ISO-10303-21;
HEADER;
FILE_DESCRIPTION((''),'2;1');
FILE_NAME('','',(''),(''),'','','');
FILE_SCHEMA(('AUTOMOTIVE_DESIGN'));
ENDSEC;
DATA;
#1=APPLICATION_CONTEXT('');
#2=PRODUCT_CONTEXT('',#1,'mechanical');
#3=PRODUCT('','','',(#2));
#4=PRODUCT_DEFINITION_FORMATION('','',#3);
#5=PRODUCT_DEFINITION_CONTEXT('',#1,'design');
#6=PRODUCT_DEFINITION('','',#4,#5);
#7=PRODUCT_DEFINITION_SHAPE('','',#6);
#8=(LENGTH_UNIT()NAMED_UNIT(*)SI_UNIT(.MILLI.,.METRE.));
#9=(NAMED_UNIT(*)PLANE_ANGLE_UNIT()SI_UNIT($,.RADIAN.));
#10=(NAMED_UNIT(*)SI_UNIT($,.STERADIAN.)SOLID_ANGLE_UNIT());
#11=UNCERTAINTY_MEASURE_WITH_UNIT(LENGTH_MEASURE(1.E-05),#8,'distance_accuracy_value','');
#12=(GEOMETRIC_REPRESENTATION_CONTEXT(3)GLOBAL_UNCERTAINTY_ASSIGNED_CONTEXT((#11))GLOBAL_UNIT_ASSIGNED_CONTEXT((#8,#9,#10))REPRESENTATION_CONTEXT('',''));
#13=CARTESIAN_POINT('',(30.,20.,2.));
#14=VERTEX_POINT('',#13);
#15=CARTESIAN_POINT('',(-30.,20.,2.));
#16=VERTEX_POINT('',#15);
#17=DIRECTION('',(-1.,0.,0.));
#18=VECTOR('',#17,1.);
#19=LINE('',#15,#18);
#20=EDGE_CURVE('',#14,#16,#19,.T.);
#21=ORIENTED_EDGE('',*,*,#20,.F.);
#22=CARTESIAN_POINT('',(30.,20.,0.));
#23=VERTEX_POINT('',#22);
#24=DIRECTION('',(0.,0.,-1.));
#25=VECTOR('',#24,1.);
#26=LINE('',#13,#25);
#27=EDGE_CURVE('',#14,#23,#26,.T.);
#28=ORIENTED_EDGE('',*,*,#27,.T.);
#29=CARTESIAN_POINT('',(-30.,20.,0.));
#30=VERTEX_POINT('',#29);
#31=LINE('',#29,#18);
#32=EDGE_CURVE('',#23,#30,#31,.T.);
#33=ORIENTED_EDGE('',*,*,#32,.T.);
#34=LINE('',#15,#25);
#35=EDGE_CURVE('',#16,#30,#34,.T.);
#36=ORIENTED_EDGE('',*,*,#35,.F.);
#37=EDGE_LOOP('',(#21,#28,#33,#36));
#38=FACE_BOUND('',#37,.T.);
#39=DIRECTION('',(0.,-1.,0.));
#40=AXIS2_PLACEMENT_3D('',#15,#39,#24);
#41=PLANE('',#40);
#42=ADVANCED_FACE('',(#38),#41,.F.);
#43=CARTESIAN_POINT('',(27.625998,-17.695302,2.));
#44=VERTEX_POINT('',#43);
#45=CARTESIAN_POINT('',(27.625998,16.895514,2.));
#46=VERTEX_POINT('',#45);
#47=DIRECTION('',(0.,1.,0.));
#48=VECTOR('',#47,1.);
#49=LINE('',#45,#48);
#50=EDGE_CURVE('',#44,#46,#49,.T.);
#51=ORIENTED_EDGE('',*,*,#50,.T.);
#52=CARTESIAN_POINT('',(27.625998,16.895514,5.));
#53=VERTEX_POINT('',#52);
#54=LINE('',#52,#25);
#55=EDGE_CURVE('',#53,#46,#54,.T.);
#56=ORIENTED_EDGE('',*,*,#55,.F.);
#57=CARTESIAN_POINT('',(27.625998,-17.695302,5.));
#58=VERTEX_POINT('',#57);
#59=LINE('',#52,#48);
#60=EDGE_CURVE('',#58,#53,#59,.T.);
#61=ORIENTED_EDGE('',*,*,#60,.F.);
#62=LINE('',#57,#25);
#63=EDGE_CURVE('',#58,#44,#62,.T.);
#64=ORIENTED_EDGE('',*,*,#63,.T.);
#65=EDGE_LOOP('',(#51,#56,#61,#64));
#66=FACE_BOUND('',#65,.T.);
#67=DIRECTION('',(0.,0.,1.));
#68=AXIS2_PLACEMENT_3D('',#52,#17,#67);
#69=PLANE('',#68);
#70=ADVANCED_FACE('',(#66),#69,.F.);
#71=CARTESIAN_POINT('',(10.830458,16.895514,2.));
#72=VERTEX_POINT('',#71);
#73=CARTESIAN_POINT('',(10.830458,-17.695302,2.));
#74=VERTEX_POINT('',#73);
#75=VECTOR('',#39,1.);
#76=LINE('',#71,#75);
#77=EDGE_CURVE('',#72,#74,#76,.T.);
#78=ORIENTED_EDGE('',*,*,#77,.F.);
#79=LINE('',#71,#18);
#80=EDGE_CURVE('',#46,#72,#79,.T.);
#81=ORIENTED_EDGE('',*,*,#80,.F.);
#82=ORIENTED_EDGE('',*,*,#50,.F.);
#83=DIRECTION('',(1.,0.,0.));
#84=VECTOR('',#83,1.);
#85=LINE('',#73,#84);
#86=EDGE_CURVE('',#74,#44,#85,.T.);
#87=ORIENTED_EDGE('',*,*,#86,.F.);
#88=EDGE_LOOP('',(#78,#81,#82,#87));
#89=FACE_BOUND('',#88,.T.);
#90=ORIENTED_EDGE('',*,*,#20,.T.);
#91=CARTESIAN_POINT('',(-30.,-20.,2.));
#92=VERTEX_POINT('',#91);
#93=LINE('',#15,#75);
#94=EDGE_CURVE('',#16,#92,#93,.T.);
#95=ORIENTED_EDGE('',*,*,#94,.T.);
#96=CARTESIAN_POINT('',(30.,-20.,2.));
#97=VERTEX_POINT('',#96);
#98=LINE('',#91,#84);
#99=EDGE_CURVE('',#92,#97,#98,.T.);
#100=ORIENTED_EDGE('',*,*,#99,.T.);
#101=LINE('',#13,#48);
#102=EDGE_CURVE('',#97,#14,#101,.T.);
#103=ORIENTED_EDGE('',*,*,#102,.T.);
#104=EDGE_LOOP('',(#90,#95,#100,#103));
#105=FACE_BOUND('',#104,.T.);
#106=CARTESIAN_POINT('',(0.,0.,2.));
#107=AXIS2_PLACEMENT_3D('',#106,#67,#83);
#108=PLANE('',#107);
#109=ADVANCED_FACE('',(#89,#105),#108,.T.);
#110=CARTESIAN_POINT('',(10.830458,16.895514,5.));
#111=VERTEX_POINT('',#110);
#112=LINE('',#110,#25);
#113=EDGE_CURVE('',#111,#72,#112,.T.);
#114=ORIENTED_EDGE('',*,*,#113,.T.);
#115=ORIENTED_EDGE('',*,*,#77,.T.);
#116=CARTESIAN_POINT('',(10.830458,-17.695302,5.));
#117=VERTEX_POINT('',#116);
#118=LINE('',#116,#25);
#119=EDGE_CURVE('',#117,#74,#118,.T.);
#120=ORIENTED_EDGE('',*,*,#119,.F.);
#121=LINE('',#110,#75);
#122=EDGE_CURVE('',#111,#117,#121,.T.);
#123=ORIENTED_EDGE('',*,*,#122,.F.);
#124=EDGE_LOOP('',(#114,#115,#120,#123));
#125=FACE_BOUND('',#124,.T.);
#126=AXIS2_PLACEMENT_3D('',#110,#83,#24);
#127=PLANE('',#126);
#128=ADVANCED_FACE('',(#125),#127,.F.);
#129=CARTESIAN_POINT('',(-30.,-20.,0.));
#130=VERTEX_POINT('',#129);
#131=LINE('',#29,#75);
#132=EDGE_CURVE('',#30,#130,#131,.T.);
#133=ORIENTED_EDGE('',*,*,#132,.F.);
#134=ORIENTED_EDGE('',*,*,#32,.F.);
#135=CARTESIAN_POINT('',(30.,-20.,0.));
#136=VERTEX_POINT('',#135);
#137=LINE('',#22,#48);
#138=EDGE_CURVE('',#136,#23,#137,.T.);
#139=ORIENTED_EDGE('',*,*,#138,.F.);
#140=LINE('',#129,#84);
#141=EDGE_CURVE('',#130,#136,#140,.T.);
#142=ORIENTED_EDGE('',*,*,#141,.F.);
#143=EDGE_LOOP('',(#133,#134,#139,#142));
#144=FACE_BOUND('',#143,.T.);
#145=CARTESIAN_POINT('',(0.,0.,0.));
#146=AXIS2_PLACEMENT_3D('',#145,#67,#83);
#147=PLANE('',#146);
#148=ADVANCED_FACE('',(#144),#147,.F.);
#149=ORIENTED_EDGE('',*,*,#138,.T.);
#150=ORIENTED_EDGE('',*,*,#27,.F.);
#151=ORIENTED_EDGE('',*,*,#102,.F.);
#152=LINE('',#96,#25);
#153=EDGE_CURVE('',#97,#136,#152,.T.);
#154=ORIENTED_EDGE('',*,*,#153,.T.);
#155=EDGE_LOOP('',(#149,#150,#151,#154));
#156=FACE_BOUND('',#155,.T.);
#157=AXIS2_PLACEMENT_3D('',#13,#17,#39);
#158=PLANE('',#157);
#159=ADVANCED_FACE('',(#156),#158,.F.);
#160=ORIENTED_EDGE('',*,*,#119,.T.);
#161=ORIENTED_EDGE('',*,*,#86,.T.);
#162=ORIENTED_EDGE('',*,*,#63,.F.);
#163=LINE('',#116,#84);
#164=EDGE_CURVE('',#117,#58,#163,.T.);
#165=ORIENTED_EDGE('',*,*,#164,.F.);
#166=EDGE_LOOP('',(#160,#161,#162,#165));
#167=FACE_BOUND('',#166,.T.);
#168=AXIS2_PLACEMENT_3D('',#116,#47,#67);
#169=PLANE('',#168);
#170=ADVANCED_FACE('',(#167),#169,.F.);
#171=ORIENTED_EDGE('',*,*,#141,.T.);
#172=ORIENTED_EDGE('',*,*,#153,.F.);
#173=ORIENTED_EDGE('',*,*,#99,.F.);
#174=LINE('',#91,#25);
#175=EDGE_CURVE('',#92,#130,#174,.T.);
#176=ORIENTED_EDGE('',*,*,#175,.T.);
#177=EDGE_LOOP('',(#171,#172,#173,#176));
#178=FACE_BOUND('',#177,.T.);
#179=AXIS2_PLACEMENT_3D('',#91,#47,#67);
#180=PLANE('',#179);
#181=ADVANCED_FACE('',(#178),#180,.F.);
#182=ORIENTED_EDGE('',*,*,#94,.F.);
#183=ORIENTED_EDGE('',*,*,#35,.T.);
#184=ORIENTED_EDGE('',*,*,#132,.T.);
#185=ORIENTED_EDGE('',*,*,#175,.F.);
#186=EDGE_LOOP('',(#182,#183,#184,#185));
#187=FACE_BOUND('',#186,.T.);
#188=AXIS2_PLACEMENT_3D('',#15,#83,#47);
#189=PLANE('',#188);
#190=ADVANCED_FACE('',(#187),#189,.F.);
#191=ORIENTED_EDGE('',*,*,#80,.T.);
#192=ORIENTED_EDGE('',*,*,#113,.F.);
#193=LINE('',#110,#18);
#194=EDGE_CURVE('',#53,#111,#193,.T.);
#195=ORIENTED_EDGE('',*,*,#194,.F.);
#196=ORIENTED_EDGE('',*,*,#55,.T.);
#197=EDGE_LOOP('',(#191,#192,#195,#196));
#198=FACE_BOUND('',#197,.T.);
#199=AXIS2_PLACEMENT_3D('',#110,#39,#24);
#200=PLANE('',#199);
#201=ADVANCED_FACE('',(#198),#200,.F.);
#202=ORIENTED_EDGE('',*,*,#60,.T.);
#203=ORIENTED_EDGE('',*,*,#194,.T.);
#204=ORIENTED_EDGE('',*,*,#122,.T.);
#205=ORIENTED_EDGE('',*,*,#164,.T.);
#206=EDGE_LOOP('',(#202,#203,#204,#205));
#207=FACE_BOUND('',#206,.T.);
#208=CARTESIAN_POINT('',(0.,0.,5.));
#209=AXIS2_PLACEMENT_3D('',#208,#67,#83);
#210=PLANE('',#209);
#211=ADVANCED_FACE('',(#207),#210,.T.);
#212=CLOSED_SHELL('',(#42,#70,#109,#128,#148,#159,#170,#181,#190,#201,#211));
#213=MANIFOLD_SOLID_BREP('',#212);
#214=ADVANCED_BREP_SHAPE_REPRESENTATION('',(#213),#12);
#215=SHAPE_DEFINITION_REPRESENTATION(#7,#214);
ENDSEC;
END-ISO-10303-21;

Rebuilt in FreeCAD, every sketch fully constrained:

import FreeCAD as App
import Part
import Sketcher


def add_polygon(sketch, points):
    """Adds a closed chain of lines whose ends are joined by coincident constraints."""
    first, n = sketch.GeometryCount, len(points)
    for a, b in zip(points, points[1:] + points[:1]):
        sketch.addGeometry(Part.LineSegment(App.Vector(*a, 0), App.Vector(*b, 0)), False)
    for i in range(n):
        sketch.addConstraint(Sketcher.Constraint("Coincident", first + i, 2, first + (i + 1) % n, 1))

doc = App.newDocument("Part")
body = doc.addObject("PartDesign::Body", "Body")

# Sketch on XY plane
sketch1 = doc.addObject("Sketcher::SketchObject", "Sketch")
body.addObject(sketch1)
sketch1.AttachmentSupport = (doc.XY_Plane, [""])
sketch1.MapMode = "FlatFace"
add_polygon(sketch1, [(-30, 20), (-30, -20), (30, -20), (30, 20)])  # lines 0-3
sketch1.addConstraint(Sketcher.Constraint("Vertical", 0))
sketch1.addConstraint(Sketcher.Constraint("Horizontal", 1))
sketch1.addConstraint(Sketcher.Constraint("Vertical", 2))
sketch1.addConstraint(Sketcher.Constraint("Horizontal", 3))
sketch1.addConstraint(Sketcher.Constraint("Symmetric", 0, 2, 2, 2, -1, 1))
sketch1.addConstraint(Sketcher.Constraint("DistanceX", 1, 1, 1, 2, 60.0))
sketch1.addConstraint(Sketcher.Constraint("DistanceY", 0, 2, 0, 1, 40.0))
pad1 = doc.addObject("PartDesign::Pad", "Pad")
body.addObject(pad1)
pad1.Profile = sketch1
pad1.Length = 2

# Sketch on XY plane
sketch2 = doc.addObject("Sketcher::SketchObject", "Sketch001")
body.addObject(sketch2)
sketch2.AttachmentSupport = (doc.XY_Plane, [""])
sketch2.MapMode = "FlatFace"
sketch2.AttachmentOffset = App.Placement(App.Vector(0, 0, 2), App.Rotation())
add_polygon(sketch2, [(11, 17), (11, -18), (28, -18), (28, 17)])  # lines 0-3
sketch2.addConstraint(Sketcher.Constraint("Vertical", 0))
sketch2.addConstraint(Sketcher.Constraint("Horizontal", 1))
sketch2.addConstraint(Sketcher.Constraint("Vertical", 2))
sketch2.addConstraint(Sketcher.Constraint("Horizontal", 3))
sketch2.addConstraint(Sketcher.Constraint("DistanceX", -1, 1, 1, 2, 27.625998))
sketch2.addConstraint(Sketcher.Constraint("DistanceX", 1, 1, 1, 2, 16.795541))
sketch2.addConstraint(Sketcher.Constraint("DistanceY", 0, 2, -1, 1, 17.695302))
sketch2.addConstraint(Sketcher.Constraint("DistanceY", 0, 2, 0, 1, 34.590816))
pad2 = doc.addObject("PartDesign::Pad", "Pad001")
body.addObject(pad2)
pad2.Profile = sketch2
pad2.Length = 3

doc.recompute()
